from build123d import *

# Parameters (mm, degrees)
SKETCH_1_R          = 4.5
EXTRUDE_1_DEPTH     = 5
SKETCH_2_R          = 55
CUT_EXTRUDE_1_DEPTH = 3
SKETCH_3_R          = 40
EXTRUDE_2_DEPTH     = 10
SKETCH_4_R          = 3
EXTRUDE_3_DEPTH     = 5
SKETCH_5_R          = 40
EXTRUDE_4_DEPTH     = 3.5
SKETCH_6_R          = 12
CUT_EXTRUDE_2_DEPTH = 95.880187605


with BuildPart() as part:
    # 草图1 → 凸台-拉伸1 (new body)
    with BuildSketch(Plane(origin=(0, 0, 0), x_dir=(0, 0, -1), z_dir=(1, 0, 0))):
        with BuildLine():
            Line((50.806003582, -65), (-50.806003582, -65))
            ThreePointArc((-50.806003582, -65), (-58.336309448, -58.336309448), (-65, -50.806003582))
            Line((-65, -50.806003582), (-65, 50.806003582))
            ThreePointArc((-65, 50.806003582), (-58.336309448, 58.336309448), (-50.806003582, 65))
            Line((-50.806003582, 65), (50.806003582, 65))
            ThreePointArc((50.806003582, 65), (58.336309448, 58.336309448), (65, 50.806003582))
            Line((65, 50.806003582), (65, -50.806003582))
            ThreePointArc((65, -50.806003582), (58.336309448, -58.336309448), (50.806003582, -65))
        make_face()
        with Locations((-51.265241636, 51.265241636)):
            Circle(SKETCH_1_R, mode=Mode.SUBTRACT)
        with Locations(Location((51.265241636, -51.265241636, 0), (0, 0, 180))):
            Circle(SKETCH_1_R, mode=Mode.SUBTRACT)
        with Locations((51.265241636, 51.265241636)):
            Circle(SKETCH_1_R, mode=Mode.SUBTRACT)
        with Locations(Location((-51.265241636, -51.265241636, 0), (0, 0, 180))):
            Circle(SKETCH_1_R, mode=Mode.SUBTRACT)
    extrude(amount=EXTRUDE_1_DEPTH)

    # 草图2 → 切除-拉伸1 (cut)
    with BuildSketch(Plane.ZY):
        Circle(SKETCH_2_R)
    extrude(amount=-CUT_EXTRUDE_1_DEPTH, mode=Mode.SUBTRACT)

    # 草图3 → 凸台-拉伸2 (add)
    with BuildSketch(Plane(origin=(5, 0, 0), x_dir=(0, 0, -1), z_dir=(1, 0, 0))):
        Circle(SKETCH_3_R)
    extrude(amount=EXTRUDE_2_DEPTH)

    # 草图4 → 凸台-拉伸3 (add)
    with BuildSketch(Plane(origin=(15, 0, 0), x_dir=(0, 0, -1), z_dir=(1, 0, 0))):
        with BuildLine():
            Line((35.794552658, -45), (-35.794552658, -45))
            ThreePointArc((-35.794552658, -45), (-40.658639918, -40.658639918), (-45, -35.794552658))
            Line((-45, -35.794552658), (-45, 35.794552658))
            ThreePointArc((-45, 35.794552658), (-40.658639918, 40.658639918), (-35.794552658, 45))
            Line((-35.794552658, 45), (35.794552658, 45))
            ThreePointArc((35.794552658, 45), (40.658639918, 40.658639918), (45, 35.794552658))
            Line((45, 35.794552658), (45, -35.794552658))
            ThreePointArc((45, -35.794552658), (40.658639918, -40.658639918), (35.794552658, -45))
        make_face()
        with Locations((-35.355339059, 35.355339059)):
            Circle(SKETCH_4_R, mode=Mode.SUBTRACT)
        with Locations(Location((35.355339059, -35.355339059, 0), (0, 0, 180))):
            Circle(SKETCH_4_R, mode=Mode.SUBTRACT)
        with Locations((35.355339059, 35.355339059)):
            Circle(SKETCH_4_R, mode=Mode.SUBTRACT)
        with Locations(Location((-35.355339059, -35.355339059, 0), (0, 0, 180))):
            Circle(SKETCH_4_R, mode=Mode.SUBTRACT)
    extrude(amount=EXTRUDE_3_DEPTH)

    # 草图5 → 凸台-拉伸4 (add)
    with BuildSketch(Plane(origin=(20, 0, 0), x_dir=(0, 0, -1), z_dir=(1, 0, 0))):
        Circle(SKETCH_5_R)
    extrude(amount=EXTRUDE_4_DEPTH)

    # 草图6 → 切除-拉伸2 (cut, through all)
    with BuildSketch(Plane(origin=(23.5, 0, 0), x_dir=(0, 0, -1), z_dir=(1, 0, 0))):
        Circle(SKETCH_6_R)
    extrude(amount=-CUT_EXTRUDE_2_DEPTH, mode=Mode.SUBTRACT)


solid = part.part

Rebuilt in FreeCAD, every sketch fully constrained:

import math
import FreeCAD as App
import Part
import Sketcher

V = App.Vector

doc = App.newDocument("Part")
params = doc.addObject("Spreadsheet::Sheet", "Params")
for row, (alias, value) in enumerate([
    ("sketch1_diameter", "9 mm"),
    ("sketch1_radius", "82.5 mm"),
    ("pad1_length", "5 mm"),
    ("sketch2_diameter", "110 mm"),
    ("pocket1_length", "3 mm"),
    ("sketch3_diameter", "80 mm"),
    ("pad2_length", "10 mm"),
    ("sketch4_diameter", "6 mm"),
    ("sketch4_radius", "57.5 mm"),
    ("pad3_length", "5 mm"),
    ("sketch5_diameter", "80 mm"),
    ("pad4_length", "3.5 mm"),
    ("sketch6_diameter", "24 mm"),
], start=1):
    params.set(f"A{row}", alias)
    params.set(f"B{row}", "=" + value)
    params.setAlias(f"B{row}", alias)

body = doc.addObject("PartDesign::Body", "Body")

# Sketch on YZ plane
sketch1 = body.newObject("Sketcher::SketchObject", "Sketch")
sketch1.AttachmentSupport = (doc.getObject("YZ_Plane"), [""])
sketch1.MapMode = "FlatFace"
sketch1.addGeometry([
    Part.LineSegment(V(-65, 50.8, 0), V(-65, -50.8, 0)),  # 0
    Part.ArcOfCircle(Part.Circle(V(0, 0, 0), V(0, 0, 1), 82.5), math.radians(-141.99), math.radians(-128.01)),  # 1
    Part.LineSegment(V(-50.8, -65, 0), V(50.8, -65, 0)),  # 2
    Part.ArcOfCircle(Part.Circle(V(0, 0, 0), V(0, 0, 1), 82.5), math.radians(-51.99), math.radians(-38.01)),  # 3
    Part.LineSegment(V(65, -50.8, 0), V(65, 50.8, 0)),  # 4
    Part.ArcOfCircle(Part.Circle(V(0, 0, 0), V(0, 0, 1), 82.5), math.radians(38.01), math.radians(51.99)),  # 5
    Part.LineSegment(V(50.8, 65, 0), V(-50.8, 65, 0)),  # 6
    Part.ArcOfCircle(Part.Circle(V(0, 0, 0), V(0, 0, 1), 82.5), math.radians(128.01), math.radians(141.99)),  # 7
    Part.Circle(V(-51.3, -51.3, 0), V(0, 0, 1), 4.5),  # 8
    Part.Circle(V(-51.3, 51.3, 0), V(0, 0, 1), 4.5),  # 9
    Part.Circle(V(51.3, -51.3, 0), V(0, 0, 1), 4.5),  # 10
    Part.Circle(V(51.3, 51.3, 0), V(0, 0, 1), 4.5),  # 11
], False)
sketch1.addConstraint([
    Sketcher.Constraint("Coincident", 0, 2, 1, 1),
    Sketcher.Constraint("Coincident", 1, 2, 2, 1),
    Sketcher.Constraint("Coincident", 2, 2, 3, 1),
    Sketcher.Constraint("Coincident", 3, 2, 4, 1),
    Sketcher.Constraint("Coincident", 4, 2, 5, 1),
    Sketcher.Constraint("Coincident", 5, 2, 6, 1),
    Sketcher.Constraint("Coincident", 6, 2, 7, 1),
    Sketcher.Constraint("Coincident", 7, 2, 0, 1),
    Sketcher.Constraint("Vertical", 0),
    Sketcher.Constraint("Horizontal", 2),
    Sketcher.Constraint("Vertical", 4),
    Sketcher.Constraint("Horizontal", 6),
    Sketcher.Constraint("Coincident", 1, 3, -1, 1),
    Sketcher.Constraint("Coincident", 3, 3, -1, 1),
    Sketcher.Constraint("Coincident", 5, 3, -1, 1),
    Sketcher.Constraint("Coincident", 7, 3, -1, 1),
    Sketcher.Constraint("Equal", 1, 3),
    Sketcher.Constraint("Equal", 3, 5),
    Sketcher.Constraint("Equal", 5, 7),
    Sketcher.Constraint("Equal", 8, 9),
    Sketcher.Constraint("Equal", 9, 10),
    Sketcher.Constraint("Equal", 10, 11),
    Sketcher.Constraint("Symmetric", 9, 3, 10, 3, -1, 1),
    Sketcher.Constraint("Symmetric", 8, 3, 11, 3, -1, 1),
    Sketcher.Constraint("Symmetric", 8, 3, 10, 3, -2),
    Sketcher.Constraint("Horizontal", 0, 2, 3, 2),
    Sketcher.Constraint("Vertical", 2, 2, 5, 2),
    Sketcher.Constraint("Equal", 6, 0),
    Sketcher.Constraint("Diameter", 8, 9.0),
    Sketcher.Constraint("Radius", 1, 82.5),
    Sketcher.Constraint("DistanceX", 0, 2, -1, 1, 65.0),
    Sketcher.Constraint("DistanceX", 8, 3, -1, 1, 51.265242),
    Sketcher.Constraint("DistanceY", 8, 3, -1, 1, 51.265242),
])
sketch1.setExpression("Constraints[28]", "Params.sketch1_diameter")
sketch1.setExpression("Constraints[29]", "Params.sketch1_radius")
pad1 = body.newObject("PartDesign::Pad", "Pad")
pad1.Profile = sketch1
pad1.setExpression("Length", "Params.pad1_length")

# Sketch on YZ plane
sketch2 = body.newObject("Sketcher::SketchObject", "Sketch001")
sketch2.AttachmentSupport = (doc.getObject("YZ_Plane"), [""])
sketch2.MapMode = "FlatFace"
sketch2.addGeometry(Part.Circle(V(0, 0, 0), V(0, 0, 1), 55), False)
sketch2.addConstraint([
    Sketcher.Constraint("Coincident", 0, 3, -1, 1),
    Sketcher.Constraint("Diameter", 0, 110.0),
])
sketch2.setExpression("Constraints[1]", "Params.sketch2_diameter")
pocket1 = body.newObject("PartDesign::Pocket", "Pocket")
pocket1.Profile = sketch2
pocket1.setExpression("Length", "Params.pocket1_length")
pocket1.Reversed = True

# Sketch on YZ plane
sketch3 = body.newObject("Sketcher::SketchObject", "Sketch002")
sketch3.AttachmentSupport = (doc.getObject("YZ_Plane"), [""])
sketch3.MapMode = "FlatFace"
sketch3.AttachmentOffset = App.Placement(V(0, 0, 5), App.Rotation())
sketch3.addGeometry(Part.Circle(V(0, 0, 0), V(0, 0, 1), 40), False)
sketch3.addConstraint([
    Sketcher.Constraint("Coincident", 0, 3, -1, 1),
    Sketcher.Constraint("Diameter", 0, 80.0),
])
sketch3.setExpression("Constraints[1]", "Params.sketch3_diameter")
pad2 = body.newObject("PartDesign::Pad", "Pad001")
pad2.Profile = sketch3
pad2.setExpression("Length", "Params.pad2_length")

# Sketch on YZ plane
sketch4 = body.newObject("Sketcher::SketchObject", "Sketch003")
sketch4.AttachmentSupport = (doc.getObject("YZ_Plane"), [""])
sketch4.MapMode = "FlatFace"
sketch4.AttachmentOffset = App.Placement(V(0, 0, 15), App.Rotation())
sketch4.addGeometry([
    Part.LineSegment(V(-45, 35.8, 0), V(-45, -35.8, 0)),  # 0
    Part.ArcOfCircle(Part.Circle(V(0, 0, 0), V(0, 0, 1), 57.5), math.radians(-141.5), math.radians(-128.5)),  # 1
    Part.LineSegment(V(-35.8, -45, 0), V(35.8, -45, 0)),  # 2
    Part.ArcOfCircle(Part.Circle(V(0, 0, 0), V(0, 0, 1), 57.5), math.radians(-51.5), math.radians(-38.5)),  # 3
    Part.LineSegment(V(45, -35.8, 0), V(45, 35.8, 0)),  # 4
    Part.ArcOfCircle(Part.Circle(V(0, 0, 0), V(0, 0, 1), 57.5), math.radians(38.5), math.radians(51.5)),  # 5
    Part.LineSegment(V(35.8, 45, 0), V(-35.8, 45, 0)),  # 6
    Part.ArcOfCircle(Part.Circle(V(0, 0, 0), V(0, 0, 1), 57.5), math.radians(128.5), math.radians(141.5)),  # 7
    Part.Circle(V(-35.4, -35.4, 0), V(0, 0, 1), 3),  # 8
    Part.Circle(V(-35.4, 35.4, 0), V(0, 0, 1), 3),  # 9
    Part.Circle(V(35.4, -35.4, 0), V(0, 0, 1), 3),  # 10
    Part.Circle(V(35.4, 35.4, 0), V(0, 0, 1), 3),  # 11
], False)
sketch4.addConstraint([
    Sketcher.Constraint("Coincident", 0, 2, 1, 1),
    Sketcher.Constraint("Coincident", 1, 2, 2, 1),
    Sketcher.Constraint("Coincident", 2, 2, 3, 1),
    Sketcher.Constraint("Coincident", 3, 2, 4, 1),
    Sketcher.Constraint("Coincident", 4, 2, 5, 1),
    Sketcher.Constraint("Coincident", 5, 2, 6, 1),
    Sketcher.Constraint("Coincident", 6, 2, 7, 1),
    Sketcher.Constraint("Coincident", 7, 2, 0, 1),
    Sketcher.Constraint("Vertical", 0),
    Sketcher.Constraint("Horizontal", 2),
    Sketcher.Constraint("Vertical", 4),
    Sketcher.Constraint("Horizontal", 6),
    Sketcher.Constraint("Coincident", 1, 3, -1, 1),
    Sketcher.Constraint("Coincident", 3, 3, -1, 1),
    Sketcher.Constraint("Coincident", 5, 3, -1, 1),
    Sketcher.Constraint("Coincident", 7, 3, -1, 1),
    Sketcher.Constraint("Equal", 1, 3),
    Sketcher.Constraint("Equal", 3, 5),
    Sketcher.Constraint("Equal", 5, 7),
    Sketcher.Constraint("Equal", 8, 9),
    Sketcher.Constraint("Equal", 9, 10),
    Sketcher.Constraint("Equal", 10, 11),
    Sketcher.Constraint("Symmetric", 9, 3, 10, 3, -1, 1),
    Sketcher.Constraint("Symmetric", 8, 3, 11, 3, -1, 1),
    Sketcher.Constraint("Symmetric", 8, 3, 10, 3, -2),
    Sketcher.Constraint("Horizontal", 0, 2, 3, 2),
    Sketcher.Constraint("Vertical", 2, 2, 5, 2),
    Sketcher.Constraint("Equal", 6, 0),
    Sketcher.Constraint("Diameter", 8, 6.0),
    Sketcher.Constraint("Radius", 1, 57.5),
    Sketcher.Constraint("DistanceX", 0, 2, -1, 1, 45.0),
    Sketcher.Constraint("DistanceX", 8, 3, -1, 1, 35.355339),
    Sketcher.Constraint("DistanceY", 8, 3, -1, 1, 35.355339),
])
sketch4.setExpression("Constraints[28]", "Params.sketch4_diameter")
sketch4.setExpression("Constraints[29]", "Params.sketch4_radius")
pad3 = body.newObject("PartDesign::Pad", "Pad002")
pad3.Profile = sketch4
pad3.setExpression("Length", "Params.pad3_length")

# Sketch on YZ plane
sketch5 = body.newObject("Sketcher::SketchObject", "Sketch004")
sketch5.AttachmentSupport = (doc.getObject("YZ_Plane"), [""])
sketch5.MapMode = "FlatFace"
sketch5.AttachmentOffset = App.Placement(V(0, 0, 20), App.Rotation())
sketch5.addGeometry(Part.Circle(V(0, 0, 0), V(0, 0, 1), 40), False)
sketch5.addConstraint([
    Sketcher.Constraint("Coincident", 0, 3, -1, 1),
    Sketcher.Constraint("Diameter", 0, 80.0),
])
sketch5.setExpression("Constraints[1]", "Params.sketch5_diameter")
pad4 = body.newObject("PartDesign::Pad", "Pad003")
pad4.Profile = sketch5
pad4.setExpression("Length", "Params.pad4_length")

# Sketch on YZ plane
sketch6 = body.newObject("Sketcher::SketchObject", "Sketch005")
sketch6.AttachmentSupport = (doc.getObject("YZ_Plane"), [""])
sketch6.MapMode = "FlatFace"
sketch6.AttachmentOffset = App.Placement(V(0, 0, 23.5), App.Rotation())
sketch6.addGeometry(Part.Circle(V(0, 0, 0), V(0, 0, 1), 12), False)
sketch6.addConstraint([
    Sketcher.Constraint("Coincident", 0, 3, -1, 1),
    Sketcher.Constraint("Diameter", 0, 24.0),
])
sketch6.setExpression("Constraints[1]", "Params.sketch6_diameter")
pocket2 = body.newObject("PartDesign::Pocket", "Pocket001")
pocket2.Profile = sketch6
pocket2.Type = "ThroughAll"

doc.recompute()
